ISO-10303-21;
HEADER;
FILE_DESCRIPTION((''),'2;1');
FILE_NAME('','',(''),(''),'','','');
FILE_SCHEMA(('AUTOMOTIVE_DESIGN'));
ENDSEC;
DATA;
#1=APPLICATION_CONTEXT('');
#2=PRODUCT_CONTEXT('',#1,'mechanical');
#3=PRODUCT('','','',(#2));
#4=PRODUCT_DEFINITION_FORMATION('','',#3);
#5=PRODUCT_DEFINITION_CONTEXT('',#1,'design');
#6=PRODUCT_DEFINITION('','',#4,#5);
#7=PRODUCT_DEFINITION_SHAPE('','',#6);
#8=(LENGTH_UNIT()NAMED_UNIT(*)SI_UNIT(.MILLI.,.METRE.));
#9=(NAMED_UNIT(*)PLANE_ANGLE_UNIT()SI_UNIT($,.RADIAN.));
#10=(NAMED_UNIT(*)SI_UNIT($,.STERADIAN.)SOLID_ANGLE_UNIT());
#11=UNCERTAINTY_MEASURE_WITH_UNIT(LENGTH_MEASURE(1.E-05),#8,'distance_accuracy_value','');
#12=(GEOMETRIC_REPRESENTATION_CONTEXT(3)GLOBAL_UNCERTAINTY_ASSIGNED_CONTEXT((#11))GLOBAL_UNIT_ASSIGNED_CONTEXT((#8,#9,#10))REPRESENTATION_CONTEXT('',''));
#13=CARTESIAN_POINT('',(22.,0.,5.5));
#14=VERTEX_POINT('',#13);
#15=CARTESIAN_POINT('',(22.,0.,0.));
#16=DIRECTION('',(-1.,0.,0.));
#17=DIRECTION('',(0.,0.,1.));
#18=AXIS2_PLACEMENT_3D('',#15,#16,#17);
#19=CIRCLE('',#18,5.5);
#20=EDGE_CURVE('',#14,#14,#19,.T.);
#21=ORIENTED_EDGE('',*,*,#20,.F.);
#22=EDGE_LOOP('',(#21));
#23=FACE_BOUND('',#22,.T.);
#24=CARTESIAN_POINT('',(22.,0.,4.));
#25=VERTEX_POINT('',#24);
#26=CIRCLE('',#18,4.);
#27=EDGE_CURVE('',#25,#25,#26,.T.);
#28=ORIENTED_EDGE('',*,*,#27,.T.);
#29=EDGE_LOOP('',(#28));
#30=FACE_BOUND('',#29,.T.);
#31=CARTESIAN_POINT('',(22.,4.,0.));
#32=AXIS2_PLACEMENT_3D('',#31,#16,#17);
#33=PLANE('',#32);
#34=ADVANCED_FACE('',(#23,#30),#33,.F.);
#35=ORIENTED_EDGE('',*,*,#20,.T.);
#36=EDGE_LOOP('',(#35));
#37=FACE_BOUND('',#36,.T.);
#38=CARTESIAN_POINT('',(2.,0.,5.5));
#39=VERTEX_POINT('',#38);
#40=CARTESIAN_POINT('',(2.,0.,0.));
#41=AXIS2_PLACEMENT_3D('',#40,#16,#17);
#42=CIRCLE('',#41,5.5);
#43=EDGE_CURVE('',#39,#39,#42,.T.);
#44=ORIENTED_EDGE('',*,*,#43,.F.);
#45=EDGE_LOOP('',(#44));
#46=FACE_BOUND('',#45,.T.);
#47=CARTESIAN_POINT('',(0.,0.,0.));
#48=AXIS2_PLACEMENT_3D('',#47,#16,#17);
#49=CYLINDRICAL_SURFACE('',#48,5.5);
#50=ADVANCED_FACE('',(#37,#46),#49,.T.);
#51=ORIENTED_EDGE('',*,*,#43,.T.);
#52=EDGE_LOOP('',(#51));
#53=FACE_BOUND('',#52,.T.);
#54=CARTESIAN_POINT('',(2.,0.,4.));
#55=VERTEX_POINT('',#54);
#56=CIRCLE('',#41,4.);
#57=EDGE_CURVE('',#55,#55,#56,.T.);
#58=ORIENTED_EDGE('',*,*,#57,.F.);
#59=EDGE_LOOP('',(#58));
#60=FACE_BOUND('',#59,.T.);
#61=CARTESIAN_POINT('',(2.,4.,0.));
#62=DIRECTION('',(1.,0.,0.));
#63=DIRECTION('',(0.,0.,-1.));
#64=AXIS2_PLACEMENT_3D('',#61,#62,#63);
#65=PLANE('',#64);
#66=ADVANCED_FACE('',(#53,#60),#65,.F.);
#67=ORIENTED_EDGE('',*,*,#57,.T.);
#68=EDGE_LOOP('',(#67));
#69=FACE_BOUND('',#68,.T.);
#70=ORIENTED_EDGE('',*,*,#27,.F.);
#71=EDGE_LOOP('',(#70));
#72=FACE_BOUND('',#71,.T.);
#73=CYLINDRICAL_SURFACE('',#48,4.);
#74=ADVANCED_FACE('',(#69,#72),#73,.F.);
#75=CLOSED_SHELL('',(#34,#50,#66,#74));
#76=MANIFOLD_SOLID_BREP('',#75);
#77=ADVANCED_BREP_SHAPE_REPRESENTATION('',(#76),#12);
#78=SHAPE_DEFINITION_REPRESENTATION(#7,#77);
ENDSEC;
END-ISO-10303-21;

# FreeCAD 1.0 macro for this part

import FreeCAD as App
import Part
import Sketcher

V = App.Vector

doc = App.newDocument("Part")
body = doc.addObject("PartDesign::Body", "Body")

sketch1 = body.newObject("Sketcher::SketchObject", "Sketch")
sketch1.AttachmentSupport = (doc.getObject("XY_Plane"), [""])
sketch1.MapMode = "FlatFace"
sketch1.addGeometry([
    Part.LineSegment(V(2, 5.5, 0), V(2, 4, 0)),
    Part.LineSegment(V(2, 4, 0), V(22, 4, 0)),
    Part.LineSegment(V(22, 4, 0), V(22, 5.5, 0)),
    Part.LineSegment(V(22, 5.5, 0), V(2, 5.5, 0)),
], False)
sketch1.addConstraint([
    Sketcher.Constraint("Coincident", 0, 2, 1, 1),
    Sketcher.Constraint("Coincident", 1, 2, 2, 1),
    Sketcher.Constraint("Coincident", 2, 2, 3, 1),
    Sketcher.Constraint("Coincident", 3, 2, 0, 1),
    Sketcher.Constraint("Vertical", 0),
    Sketcher.Constraint("Horizontal", 1),
    Sketcher.Constraint("Vertical", 2),
    Sketcher.Constraint("Horizontal", 3),
    Sketcher.Constraint("DistanceX", 1, 1, 1, 2, 20.0),
    Sketcher.Constraint("DistanceY", 0, 2, 0, 1, 1.5),
    Sketcher.Constraint("DistanceX", -1, 1, 0, 2, 2.0),
    Sketcher.Constraint("DistanceY", -1, 1, 0, 2, 4.0),
])
revolution = body.newObject("PartDesign::Revolution", "Revolution")
revolution.Profile = sketch1
revolution.ReferenceAxis = (sketch1, ["H_Axis"])
revolution.Angle = 360

doc.recompute()
